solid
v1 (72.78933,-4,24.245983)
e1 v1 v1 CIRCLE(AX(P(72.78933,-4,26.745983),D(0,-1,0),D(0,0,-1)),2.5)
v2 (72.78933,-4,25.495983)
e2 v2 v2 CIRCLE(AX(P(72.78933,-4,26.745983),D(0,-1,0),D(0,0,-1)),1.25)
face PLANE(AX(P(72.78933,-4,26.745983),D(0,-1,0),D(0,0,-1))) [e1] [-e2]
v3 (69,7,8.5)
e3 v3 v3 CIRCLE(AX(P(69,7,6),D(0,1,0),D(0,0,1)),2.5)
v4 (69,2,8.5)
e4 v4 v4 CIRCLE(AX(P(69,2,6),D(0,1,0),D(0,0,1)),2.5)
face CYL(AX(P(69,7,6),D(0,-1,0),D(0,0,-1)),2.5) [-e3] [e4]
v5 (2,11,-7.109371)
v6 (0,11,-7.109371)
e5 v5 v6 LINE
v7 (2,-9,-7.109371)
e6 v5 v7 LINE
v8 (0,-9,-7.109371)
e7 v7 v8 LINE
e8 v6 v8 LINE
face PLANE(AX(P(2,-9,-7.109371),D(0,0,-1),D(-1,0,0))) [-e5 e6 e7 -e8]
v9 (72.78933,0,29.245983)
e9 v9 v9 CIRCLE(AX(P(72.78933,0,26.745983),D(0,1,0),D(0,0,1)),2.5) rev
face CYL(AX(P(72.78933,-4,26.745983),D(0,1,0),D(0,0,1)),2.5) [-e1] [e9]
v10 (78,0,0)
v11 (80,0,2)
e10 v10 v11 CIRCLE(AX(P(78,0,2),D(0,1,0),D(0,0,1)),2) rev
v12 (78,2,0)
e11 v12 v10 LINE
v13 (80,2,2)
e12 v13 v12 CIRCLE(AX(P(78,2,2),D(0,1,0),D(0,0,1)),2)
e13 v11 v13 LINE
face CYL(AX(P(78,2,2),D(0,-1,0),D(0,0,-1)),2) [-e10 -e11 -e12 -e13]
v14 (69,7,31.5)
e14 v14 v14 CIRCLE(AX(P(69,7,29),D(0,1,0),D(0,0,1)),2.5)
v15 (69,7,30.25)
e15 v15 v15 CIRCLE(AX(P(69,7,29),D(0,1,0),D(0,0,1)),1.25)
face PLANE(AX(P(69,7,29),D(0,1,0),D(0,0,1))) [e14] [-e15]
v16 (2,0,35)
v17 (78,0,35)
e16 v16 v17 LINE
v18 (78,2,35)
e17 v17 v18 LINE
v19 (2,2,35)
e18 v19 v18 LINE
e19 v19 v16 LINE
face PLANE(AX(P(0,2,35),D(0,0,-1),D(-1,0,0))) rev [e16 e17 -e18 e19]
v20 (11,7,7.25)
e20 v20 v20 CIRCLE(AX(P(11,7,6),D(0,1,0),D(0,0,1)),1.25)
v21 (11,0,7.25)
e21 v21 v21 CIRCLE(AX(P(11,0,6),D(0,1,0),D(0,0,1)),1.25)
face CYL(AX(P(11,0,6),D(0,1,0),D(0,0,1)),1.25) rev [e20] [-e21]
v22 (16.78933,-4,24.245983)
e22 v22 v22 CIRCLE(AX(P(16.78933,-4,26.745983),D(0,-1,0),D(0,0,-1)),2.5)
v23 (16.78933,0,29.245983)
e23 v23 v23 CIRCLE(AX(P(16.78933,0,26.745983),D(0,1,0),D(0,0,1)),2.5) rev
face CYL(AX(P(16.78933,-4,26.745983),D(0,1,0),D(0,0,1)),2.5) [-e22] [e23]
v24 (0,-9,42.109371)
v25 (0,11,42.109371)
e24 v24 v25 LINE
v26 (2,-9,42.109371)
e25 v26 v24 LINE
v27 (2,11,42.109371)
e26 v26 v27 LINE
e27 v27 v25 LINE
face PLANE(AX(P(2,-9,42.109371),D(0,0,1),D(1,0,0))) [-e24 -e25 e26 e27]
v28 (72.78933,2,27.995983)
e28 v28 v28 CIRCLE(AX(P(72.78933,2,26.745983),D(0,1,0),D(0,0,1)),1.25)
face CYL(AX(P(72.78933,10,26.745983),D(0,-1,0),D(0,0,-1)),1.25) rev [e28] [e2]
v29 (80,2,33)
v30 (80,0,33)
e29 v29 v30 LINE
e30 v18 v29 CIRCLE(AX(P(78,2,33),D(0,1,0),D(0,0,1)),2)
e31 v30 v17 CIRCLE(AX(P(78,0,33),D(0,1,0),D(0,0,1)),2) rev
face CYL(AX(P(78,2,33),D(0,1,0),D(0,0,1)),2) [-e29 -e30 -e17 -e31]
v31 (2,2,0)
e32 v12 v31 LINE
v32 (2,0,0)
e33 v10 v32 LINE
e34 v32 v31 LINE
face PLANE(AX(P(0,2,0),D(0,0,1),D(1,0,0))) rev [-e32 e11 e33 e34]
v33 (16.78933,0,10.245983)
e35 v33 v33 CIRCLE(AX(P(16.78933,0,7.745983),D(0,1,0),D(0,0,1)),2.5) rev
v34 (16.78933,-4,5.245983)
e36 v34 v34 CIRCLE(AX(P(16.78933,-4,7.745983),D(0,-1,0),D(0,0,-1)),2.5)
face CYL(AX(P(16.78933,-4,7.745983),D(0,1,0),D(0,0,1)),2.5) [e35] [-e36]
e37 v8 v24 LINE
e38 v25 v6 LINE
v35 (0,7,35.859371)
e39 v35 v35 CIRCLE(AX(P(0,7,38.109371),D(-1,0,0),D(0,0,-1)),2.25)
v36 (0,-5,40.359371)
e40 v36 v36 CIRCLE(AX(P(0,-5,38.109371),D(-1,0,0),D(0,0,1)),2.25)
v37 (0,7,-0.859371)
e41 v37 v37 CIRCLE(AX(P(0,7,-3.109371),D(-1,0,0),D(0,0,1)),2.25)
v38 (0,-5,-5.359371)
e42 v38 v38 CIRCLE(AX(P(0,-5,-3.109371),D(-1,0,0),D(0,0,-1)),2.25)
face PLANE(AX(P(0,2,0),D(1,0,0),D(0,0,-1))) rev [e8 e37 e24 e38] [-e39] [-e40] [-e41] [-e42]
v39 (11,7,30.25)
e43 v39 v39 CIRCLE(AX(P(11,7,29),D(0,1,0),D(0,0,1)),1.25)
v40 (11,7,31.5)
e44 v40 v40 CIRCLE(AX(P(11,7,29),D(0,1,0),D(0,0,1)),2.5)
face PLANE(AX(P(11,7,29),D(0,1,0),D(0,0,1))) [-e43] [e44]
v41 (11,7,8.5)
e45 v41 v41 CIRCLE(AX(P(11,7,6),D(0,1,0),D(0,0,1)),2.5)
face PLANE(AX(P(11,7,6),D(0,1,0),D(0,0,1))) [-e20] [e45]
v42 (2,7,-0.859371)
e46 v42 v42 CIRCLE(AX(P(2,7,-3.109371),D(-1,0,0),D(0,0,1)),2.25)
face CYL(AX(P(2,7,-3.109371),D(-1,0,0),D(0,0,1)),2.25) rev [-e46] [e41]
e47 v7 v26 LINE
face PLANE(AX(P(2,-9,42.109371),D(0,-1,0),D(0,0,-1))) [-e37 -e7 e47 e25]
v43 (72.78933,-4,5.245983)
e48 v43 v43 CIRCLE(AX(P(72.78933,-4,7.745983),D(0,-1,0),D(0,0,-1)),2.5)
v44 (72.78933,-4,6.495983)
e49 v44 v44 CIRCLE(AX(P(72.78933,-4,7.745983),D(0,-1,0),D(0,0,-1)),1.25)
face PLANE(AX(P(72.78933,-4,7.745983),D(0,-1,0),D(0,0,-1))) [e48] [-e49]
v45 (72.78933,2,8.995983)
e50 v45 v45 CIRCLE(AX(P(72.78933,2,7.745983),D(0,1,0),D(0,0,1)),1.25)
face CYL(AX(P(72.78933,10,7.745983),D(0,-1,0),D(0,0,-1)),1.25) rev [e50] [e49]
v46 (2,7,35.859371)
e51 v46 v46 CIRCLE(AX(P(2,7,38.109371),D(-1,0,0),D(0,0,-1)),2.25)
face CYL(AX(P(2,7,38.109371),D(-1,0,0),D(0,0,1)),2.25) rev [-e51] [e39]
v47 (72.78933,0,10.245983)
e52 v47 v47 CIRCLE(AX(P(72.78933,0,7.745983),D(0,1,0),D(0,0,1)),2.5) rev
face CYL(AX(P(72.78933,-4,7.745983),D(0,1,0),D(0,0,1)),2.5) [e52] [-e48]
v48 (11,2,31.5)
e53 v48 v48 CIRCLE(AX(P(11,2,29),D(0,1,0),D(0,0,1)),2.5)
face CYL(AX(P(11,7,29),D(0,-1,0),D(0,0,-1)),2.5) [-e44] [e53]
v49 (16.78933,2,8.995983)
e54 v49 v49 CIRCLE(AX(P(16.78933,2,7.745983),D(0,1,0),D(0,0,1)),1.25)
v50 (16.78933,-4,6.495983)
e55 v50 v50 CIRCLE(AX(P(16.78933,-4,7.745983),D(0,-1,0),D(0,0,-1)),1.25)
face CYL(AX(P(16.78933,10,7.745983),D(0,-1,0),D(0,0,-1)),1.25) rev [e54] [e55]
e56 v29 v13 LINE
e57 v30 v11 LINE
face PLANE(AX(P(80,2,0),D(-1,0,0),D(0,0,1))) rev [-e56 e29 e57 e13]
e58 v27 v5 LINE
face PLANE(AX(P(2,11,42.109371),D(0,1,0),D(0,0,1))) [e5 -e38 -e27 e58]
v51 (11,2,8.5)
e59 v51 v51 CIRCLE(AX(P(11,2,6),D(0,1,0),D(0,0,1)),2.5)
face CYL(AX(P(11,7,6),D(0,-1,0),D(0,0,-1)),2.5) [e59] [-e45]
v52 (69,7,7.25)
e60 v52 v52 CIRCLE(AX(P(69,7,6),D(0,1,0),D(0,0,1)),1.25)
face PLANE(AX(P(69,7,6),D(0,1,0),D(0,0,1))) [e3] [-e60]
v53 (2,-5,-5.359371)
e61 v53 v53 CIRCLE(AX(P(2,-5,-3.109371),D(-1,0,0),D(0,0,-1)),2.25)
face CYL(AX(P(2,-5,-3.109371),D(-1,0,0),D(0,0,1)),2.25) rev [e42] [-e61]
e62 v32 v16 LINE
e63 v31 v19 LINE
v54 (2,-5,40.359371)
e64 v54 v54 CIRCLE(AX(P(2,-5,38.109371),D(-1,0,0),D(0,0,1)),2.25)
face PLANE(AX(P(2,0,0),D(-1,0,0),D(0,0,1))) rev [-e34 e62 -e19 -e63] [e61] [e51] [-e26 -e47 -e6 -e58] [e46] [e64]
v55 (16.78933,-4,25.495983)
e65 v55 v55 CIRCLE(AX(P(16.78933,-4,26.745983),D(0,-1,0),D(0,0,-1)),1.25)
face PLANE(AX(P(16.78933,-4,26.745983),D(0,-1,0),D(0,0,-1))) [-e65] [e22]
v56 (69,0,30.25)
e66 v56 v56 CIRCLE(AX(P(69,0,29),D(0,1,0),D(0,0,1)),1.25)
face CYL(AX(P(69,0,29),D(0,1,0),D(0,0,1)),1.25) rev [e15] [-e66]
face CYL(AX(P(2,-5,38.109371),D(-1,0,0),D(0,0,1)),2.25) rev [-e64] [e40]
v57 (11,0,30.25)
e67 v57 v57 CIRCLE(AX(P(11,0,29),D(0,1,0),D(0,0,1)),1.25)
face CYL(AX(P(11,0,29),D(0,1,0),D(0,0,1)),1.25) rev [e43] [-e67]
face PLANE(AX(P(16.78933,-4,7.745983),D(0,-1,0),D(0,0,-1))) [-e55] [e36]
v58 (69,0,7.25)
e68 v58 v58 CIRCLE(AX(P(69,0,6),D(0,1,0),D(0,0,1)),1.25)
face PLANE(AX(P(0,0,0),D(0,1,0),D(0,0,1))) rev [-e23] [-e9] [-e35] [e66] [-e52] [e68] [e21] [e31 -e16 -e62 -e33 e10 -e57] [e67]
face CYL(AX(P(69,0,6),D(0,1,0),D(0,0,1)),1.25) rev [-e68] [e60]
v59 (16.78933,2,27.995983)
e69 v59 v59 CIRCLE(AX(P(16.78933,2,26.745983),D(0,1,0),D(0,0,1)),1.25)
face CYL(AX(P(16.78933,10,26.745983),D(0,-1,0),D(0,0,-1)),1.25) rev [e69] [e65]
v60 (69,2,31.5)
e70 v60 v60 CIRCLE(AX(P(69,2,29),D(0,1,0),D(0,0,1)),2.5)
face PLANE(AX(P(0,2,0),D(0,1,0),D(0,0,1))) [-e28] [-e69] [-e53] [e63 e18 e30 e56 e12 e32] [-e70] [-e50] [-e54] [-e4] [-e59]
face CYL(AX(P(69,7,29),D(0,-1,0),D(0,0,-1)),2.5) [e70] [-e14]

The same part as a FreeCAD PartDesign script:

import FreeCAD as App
import Part
import Sketcher

V = App.Vector


def edges_at(feature, points):
    """Names of the edges that pass closest to the given points."""
    edges = feature.Shape.Edges
    near = lambda p: min(range(len(edges)), key=lambda i: edges[i].distToShape(Part.Vertex(*p))[0])
    return sorted({f"Edge{near(p) + 1}" for p in points})

doc = App.newDocument("Part")
body = doc.addObject("PartDesign::Body", "Body")

# Sketch on XZ plane
sketch1 = body.newObject("Sketcher::SketchObject", "Sketch")
sketch1.AttachmentSupport = (doc.getObject("XZ_Plane"), [""])
sketch1.MapMode = "FlatFace"
sketch1.addGeometry([
    Part.LineSegment(V(0, 0, 0), V(0, 35, 0)),
    Part.LineSegment(V(0, 35, 0), V(80, 35, 0)),
    Part.LineSegment(V(80, 35, 0), V(80, 0, 0)),
    Part.LineSegment(V(80, 0, 0), V(0, 0, 0)),
], False)
sketch1.addConstraint([
    Sketcher.Constraint("Coincident", 0, 2, 1, 1),
    Sketcher.Constraint("Coincident", 1, 2, 2, 1),
    Sketcher.Constraint("Coincident", 2, 2, 3, 1),
    Sketcher.Constraint("Coincident", 3, 2, 0, 1),
    Sketcher.Constraint("Vertical", 0),
    Sketcher.Constraint("Horizontal", 1),
    Sketcher.Constraint("Vertical", 2),
    Sketcher.Constraint("Horizontal", 3),
    Sketcher.Constraint("Coincident", 3, 2, -1, 1),
    Sketcher.Constraint("DistanceX", 1, 1, 1, 2, 80.0),
    Sketcher.Constraint("DistanceY", 0, 1, 0, 2, 35.0),
])
pad1 = body.newObject("PartDesign::Pad", "Pad")
pad1.Profile = sketch1
pad1.Length = 2
pad1.Reversed = True

# Sketch on XZ plane
sketch2 = body.newObject("Sketcher::SketchObject", "Sketch001")
sketch2.AttachmentSupport = (doc.getObject("XZ_Plane"), [""])
sketch2.MapMode = "FlatFace"
sketch2.AttachmentOffset = App.Placement(V(0, 0, -2), App.Rotation())
sketch2.addGeometry([
    Part.Circle(V(11, 6, 0), V(0, 0, 1), 2.5),
    Part.Circle(V(11, 29, 0), V(0, 0, 1), 2.5),
    Part.Circle(V(69, 6, 0), V(0, 0, 1), 2.5),
    Part.Circle(V(69, 29, 0), V(0, 0, 1), 2.5),
], False)
sketch2.addConstraint([
    Sketcher.Constraint("Equal", 0, 1),
    Sketcher.Constraint("Equal", 1, 2),
    Sketcher.Constraint("Equal", 2, 3),
    Sketcher.Constraint("Horizontal", 0, 3, 2, 3),
    Sketcher.Constraint("Horizontal", 1, 3, 3, 3),
    Sketcher.Constraint("Vertical", 0, 3, 1, 3),
    Sketcher.Constraint("Vertical", 2, 3, 3, 3),
    Sketcher.Constraint("Diameter", 0, 5.0),
    Sketcher.Constraint("DistanceX", -1, 1, 0, 3, 11.0),
    Sketcher.Constraint("DistanceY", -1, 1, 0, 3, 6.0),
    Sketcher.Constraint("DistanceY", -1, 1, 1, 3, 29.0),
    Sketcher.Constraint("DistanceX", -1, 1, 2, 3, 69.0),
])
pad2 = body.newObject("PartDesign::Pad", "Pad001")
pad2.Profile = sketch2
pad2.Length = 5
pad2.Reversed = True

# Sketch on XZ plane
sketch3 = body.newObject("Sketcher::SketchObject", "Sketch002")
sketch3.AttachmentSupport = (doc.getObject("XZ_Plane"), [""])
sketch3.MapMode = "FlatFace"
sketch3.AttachmentOffset = App.Placement(V(0, 0, -7), App.Rotation())
sketch3.addGeometry([
    Part.Circle(V(11, 6, 0), V(0, 0, 1), 1.2),
    Part.Circle(V(11, 29, 0), V(0, 0, 1), 1.2),
    Part.Circle(V(69, 6, 0), V(0, 0, 1), 1.2),
    Part.Circle(V(69, 29, 0), V(0, 0, 1), 1.2),
], False)
sketch3.addConstraint([
    Sketcher.Constraint("Equal", 0, 1),
    Sketcher.Constraint("Equal", 1, 2),
    Sketcher.Constraint("Equal", 2, 3),
    Sketcher.Constraint("Horizontal", 0, 3, 2, 3),
    Sketcher.Constraint("Horizontal", 1, 3, 3, 3),
    Sketcher.Constraint("Vertical", 0, 3, 1, 3),
    Sketcher.Constraint("Vertical", 2, 3, 3, 3),
    Sketcher.Constraint("Diameter", 0, 2.5),
    Sketcher.Constraint("DistanceX", -1, 1, 0, 3, 11.0),
    Sketcher.Constraint("DistanceY", -1, 1, 0, 3, 6.0),
    Sketcher.Constraint("DistanceY", -1, 1, 1, 3, 29.0),
    Sketcher.Constraint("DistanceX", -1, 1, 2, 3, 69.0),
])
pocket1 = body.newObject("PartDesign::Pocket", "Pocket")
pocket1.Profile = sketch3
pocket1.Type = "ThroughAll"
pocket1.Midplane = True
doc.recompute()

fillet = body.newObject("PartDesign::Fillet", "Fillet")
fillet.Base = (pocket1, edges_at(pocket1, [(0, 1, 0)]))
fillet.Radius = 2
doc.recompute()

fillet2 = body.newObject("PartDesign::Fillet", "Fillet001")
fillet2.Base = (fillet, edges_at(fillet, [(0, 1, 35)]))
fillet2.Radius = 2
doc.recompute()

fillet3 = body.newObject("PartDesign::Fillet", "Fillet002")
fillet3.Base = (fillet2, edges_at(fillet2, [(80, 1, 35)]))
fillet3.Radius = 2
doc.recompute()

fillet4 = body.newObject("PartDesign::Fillet", "Fillet003")
fillet4.Base = (fillet3, edges_at(fillet3, [(80, 1, 0)]))
fillet4.Radius = 2

# Sketch on XZ plane
sketch4 = body.newObject("Sketcher::SketchObject", "Sketch003")
sketch4.AttachmentSupport = (doc.getObject("XZ_Plane"), [""])
sketch4.MapMode = "FlatFace"
sketch4.addGeometry([
    Part.Circle(V(16.8, 26.7, 0), V(0, 0, 1), 1.2),
    Part.Circle(V(72.8, 26.7, 0), V(0, 0, 1), 1.2),
    Part.Circle(V(72.8, 7.7, 0), V(0, 0, 1), 1.2),
    Part.Circle(V(16.8, 7.7, 0), V(0, 0, 1), 1.2),
], False)
sketch4.addConstraint([
    Sketcher.Constraint("Equal", 0, 1),
    Sketcher.Constraint("Equal", 1, 2),
    Sketcher.Constraint("Equal", 2, 3),
    Sketcher.Constraint("Horizontal", 0, 3, 1, 3),
    Sketcher.Constraint("Horizontal", 2, 3, 3, 3),
    Sketcher.Constraint("Vertical", 1, 3, 2, 3),
    Sketcher.Constraint("Vertical", 0, 3, 3, 3),
    Sketcher.Constraint("Diameter", 0, 2.5),
    Sketcher.Constraint("DistanceX", 0, 3, 1, 3, 56.0),
    Sketcher.Constraint("DistanceY", 2, 3, 1, 3, 19.0),
    Sketcher.Constraint("DistanceX", -1, 1, 0, 3, 16.78933),
    Sketcher.Constraint("DistanceY", -1, 1, 0, 3, 26.745983),
])
pocket2 = body.newObject("PartDesign::Pocket", "Pocket001")
pocket2.Profile = sketch4
pocket2.Length = 10

# Sketch on XZ plane
sketch5 = body.newObject("Sketcher::SketchObject", "Sketch004")
sketch5.AttachmentSupport = (doc.getObject("XZ_Plane"), [""])
sketch5.MapMode = "FlatFace"
sketch5.addGeometry([
    Part.Circle(V(16.8, 26.7, 0), V(0, 0, 1), 2.5),  # 0
    Part.Circle(V(16.8, 26.7, 0), V(0, 0, 1), 1.2),  # 1
    Part.Circle(V(72.8, 26.7, 0), V(0, 0, 1), 2.5),  # 2
    Part.Circle(V(72.8, 26.7, 0), V(0, 0, 1), 1.2),  # 3
    Part.Circle(V(72.8, 7.7, 0), V(0, 0, 1), 2.5),  # 4
    Part.Circle(V(72.8, 7.7, 0), V(0, 0, 1), 1.2),  # 5
    Part.Circle(V(16.8, 7.7, 0), V(0, 0, 1), 2.5),  # 6
    Part.Circle(V(16.8, 7.7, 0), V(0, 0, 1), 1.2),  # 7
], False)
sketch5.addConstraint([
    Sketcher.Constraint("Coincident", 1, 3, 0, 3),
    Sketcher.Constraint("Coincident", 3, 3, 2, 3),
    Sketcher.Constraint("Coincident", 5, 3, 4, 3),
    Sketcher.Constraint("Coincident", 7, 3, 6, 3),
    Sketcher.Constraint("Equal", 0, 2),
    Sketcher.Constraint("Equal", 1, 3),
    Sketcher.Constraint("Equal", 2, 4),
    Sketcher.Constraint("Equal", 3, 5),
    Sketcher.Constraint("Equal", 4, 6),
    Sketcher.Constraint("Equal", 5, 7),
    Sketcher.Constraint("Horizontal", 1, 3, 2, 3),
    Sketcher.Constraint("Horizontal", 5, 3, 6, 3),
    Sketcher.Constraint("Vertical", 3, 3, 4, 3),
    Sketcher.Constraint("Vertical", 1, 3, 6, 3),
    Sketcher.Constraint("Diameter", 0, 5.0),
    Sketcher.Constraint("Diameter", 1, 2.5),
    Sketcher.Constraint("DistanceX", 0, 3, 2, 3, 56.0),
    Sketcher.Constraint("DistanceY", 4, 3, 2, 3, 19.0),
    Sketcher.Constraint("DistanceX", -1, 1, 0, 3, 16.78933),
    Sketcher.Constraint("DistanceY", -1, 1, 0, 3, 26.745983),
])
pad3 = body.newObject("PartDesign::Pad", "Pad002")
pad3.Profile = sketch5
pad3.Length = 4

# Sketch on YZ plane
sketch6 = body.newObject("Sketcher::SketchObject", "Sketch005")
sketch6.AttachmentSupport = (doc.getObject("YZ_Plane"), [""])
sketch6.MapMode = "FlatFace"
sketch6.addGeometry([
    Part.LineSegment(V(11, -7.1, 0), V(-9, -7.1, 0)),  # 0
    Part.LineSegment(V(-9, -7.1, 0), V(-9, 42.1, 0)),  # 1
    Part.LineSegment(V(-9, 42.1, 0), V(11, 42.1, 0)),  # 2
    Part.LineSegment(V(11, 42.1, 0), V(11, -7.1, 0)),  # 3
    Part.Circle(V(-5, -3.1, 0), V(0, 0, 1), 2.2),  # 4
    Part.Circle(V(-5, 38.1, 0), V(0, 0, 1), 2.2),  # 5
    Part.Circle(V(7, -3.1, 0), V(0, 0, 1), 2.2),  # 6
    Part.Circle(V(7, 38.1, 0), V(0, 0, 1), 2.2),  # 7
], False)
sketch6.addConstraint([
    Sketcher.Constraint("Coincident", 0, 2, 1, 1),
    Sketcher.Constraint("Coincident", 1, 2, 2, 1),
    Sketcher.Constraint("Coincident", 2, 2, 3, 1),
    Sketcher.Constraint("Coincident", 3, 2, 0, 1),
    Sketcher.Constraint("Horizontal", 0),
    Sketcher.Constraint("Vertical", 1),
    Sketcher.Constraint("Horizontal", 2),
    Sketcher.Constraint("Vertical", 3),
    Sketcher.Constraint("Equal", 4, 5),
    Sketcher.Constraint("Equal", 5, 6),
    Sketcher.Constraint("Equal", 6, 7),
    Sketcher.Constraint("Horizontal", 4, 3, 6, 3),
    Sketcher.Constraint("Horizontal", 5, 3, 7, 3),
    Sketcher.Constraint("Vertical", 4, 3, 5, 3),
    Sketcher.Constraint("Vertical", 6, 3, 7, 3),
    Sketcher.Constraint("Diameter", 4, 4.5),
    Sketcher.Constraint("DistanceX", 0, 2, 0, 1, 20.0),
    Sketcher.Constraint("DistanceX", 4, 3, -1, 1, 5.0),
    Sketcher.Constraint("DistanceX", -1, 1, 6, 3, 7.0),
    Sketcher.Constraint("DistanceX", 0, 2, -1, 1, 9.0),
    Sketcher.Constraint("DistanceY", 0, 2, 4, 3, 4.0),
    Sketcher.Constraint("DistanceY", 5, 3, 1, 2, 4.0),
    Sketcher.Constraint("DistanceY", 1, 1, 1, 2, 49.218742),
    Sketcher.Constraint("DistanceY", 4, 3, -1, 1, 3.109371),
])
pad4 = body.newObject("PartDesign::Pad", "Pad003")
pad4.Profile = sketch6
pad4.Length = 2

doc.recompute()
